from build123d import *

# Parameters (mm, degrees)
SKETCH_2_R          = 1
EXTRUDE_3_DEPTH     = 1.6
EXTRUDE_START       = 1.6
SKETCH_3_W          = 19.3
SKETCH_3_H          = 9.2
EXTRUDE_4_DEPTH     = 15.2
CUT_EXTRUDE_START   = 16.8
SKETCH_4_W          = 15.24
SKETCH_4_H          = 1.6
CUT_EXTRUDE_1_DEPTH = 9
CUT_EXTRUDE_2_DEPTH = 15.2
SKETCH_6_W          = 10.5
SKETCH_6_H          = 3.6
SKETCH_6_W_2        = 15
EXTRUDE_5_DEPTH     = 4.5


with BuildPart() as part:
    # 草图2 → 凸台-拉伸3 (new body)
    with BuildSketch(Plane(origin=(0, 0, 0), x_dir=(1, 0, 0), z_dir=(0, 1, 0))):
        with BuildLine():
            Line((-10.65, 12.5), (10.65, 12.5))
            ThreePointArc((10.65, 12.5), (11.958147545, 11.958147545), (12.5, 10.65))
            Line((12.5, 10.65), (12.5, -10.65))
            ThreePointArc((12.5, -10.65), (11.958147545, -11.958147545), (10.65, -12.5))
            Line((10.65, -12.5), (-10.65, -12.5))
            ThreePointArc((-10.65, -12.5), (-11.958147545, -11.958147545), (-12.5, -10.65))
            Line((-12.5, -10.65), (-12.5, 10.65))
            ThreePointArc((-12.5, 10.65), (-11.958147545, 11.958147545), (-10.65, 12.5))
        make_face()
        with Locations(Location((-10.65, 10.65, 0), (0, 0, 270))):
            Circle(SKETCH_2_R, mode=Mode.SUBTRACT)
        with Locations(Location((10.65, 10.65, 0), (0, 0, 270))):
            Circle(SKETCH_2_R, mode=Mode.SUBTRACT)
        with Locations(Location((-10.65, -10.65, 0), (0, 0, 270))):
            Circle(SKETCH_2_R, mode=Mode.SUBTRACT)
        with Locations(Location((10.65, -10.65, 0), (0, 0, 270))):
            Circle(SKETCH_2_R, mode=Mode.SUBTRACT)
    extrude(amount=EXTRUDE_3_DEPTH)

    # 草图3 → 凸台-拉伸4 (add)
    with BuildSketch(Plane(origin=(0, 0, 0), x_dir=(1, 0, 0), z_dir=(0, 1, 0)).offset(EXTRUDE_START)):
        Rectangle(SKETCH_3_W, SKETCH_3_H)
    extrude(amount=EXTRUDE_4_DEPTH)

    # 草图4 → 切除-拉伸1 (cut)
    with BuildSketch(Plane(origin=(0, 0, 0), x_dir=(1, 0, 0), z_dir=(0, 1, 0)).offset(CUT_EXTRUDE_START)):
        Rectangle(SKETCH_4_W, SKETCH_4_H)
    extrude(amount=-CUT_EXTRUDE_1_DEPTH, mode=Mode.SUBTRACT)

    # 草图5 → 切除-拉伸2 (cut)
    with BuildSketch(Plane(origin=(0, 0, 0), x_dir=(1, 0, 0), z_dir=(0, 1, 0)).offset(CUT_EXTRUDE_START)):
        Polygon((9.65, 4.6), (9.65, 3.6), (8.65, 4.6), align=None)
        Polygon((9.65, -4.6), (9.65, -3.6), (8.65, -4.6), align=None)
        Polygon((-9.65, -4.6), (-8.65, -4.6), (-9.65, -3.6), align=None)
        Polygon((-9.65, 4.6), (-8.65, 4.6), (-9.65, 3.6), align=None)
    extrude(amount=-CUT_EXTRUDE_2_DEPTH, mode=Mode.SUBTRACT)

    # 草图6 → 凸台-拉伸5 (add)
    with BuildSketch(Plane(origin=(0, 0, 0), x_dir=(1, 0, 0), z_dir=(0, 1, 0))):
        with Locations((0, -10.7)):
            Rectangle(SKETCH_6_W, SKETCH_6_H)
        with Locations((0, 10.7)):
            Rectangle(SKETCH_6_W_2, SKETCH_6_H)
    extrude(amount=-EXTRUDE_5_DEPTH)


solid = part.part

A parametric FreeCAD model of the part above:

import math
import FreeCAD as App
import Part
import Sketcher


def add_polygon(sketch, points):
    """Adds a closed chain of lines whose ends are joined by coincident constraints."""
    first, n = sketch.GeometryCount, len(points)
    for a, b in zip(points, points[1:] + points[:1]):
        sketch.addGeometry(Part.LineSegment(App.Vector(*a, 0), App.Vector(*b, 0)), False)
    for i in range(n):
        sketch.addConstraint(Sketcher.Constraint("Coincident", first + i, 2, first + (i + 1) % n, 1))

doc = App.newDocument("Part")
body = doc.addObject("PartDesign::Body", "Body")

sketch1 = body.newObject("Sketcher::SketchObject", "Sketch")
sketch1.AttachmentSupport = (doc.getObject("XZ_Plane"), [""])
sketch1.MapMode = "FlatFace"
sketch1.addGeometry([
    Part.LineSegment(App.Vector(10.7, -12.5, 0), App.Vector(-10.7, -12.5, 0)),
    Part.ArcOfCircle(Part.Circle(App.Vector(-10.6, -10.6, 0), App.Vector(0, 0, 1), 1.9), math.radians(-180), math.radians(-90)),
    Part.LineSegment(App.Vector(-12.5, -10.7, 0), App.Vector(-12.5, 10.7, 0)),
    Part.ArcOfCircle(Part.Circle(App.Vector(-10.6, 10.6, 0), App.Vector(0, 0, 1), 1.9), math.radians(90), math.radians(180)),
    Part.LineSegment(App.Vector(-10.7, 12.5, 0), App.Vector(10.7, 12.5, 0)),
    Part.ArcOfCircle(Part.Circle(App.Vector(10.6, 10.6, 0), App.Vector(0, 0, 1), 1.9), math.radians(0), math.radians(90)),
    Part.LineSegment(App.Vector(12.5, 10.7, 0), App.Vector(12.5, -10.7, 0)),
    Part.ArcOfCircle(Part.Circle(App.Vector(10.6, -10.6, 0), App.Vector(0, 0, 1), 1.9), math.radians(-90), math.radians(0)),
    Part.Circle(App.Vector(10.7, 10.7, 0), App.Vector(0, 0, 1), 1),
    Part.Circle(App.Vector(-10.7, 10.7, 0), App.Vector(0, 0, 1), 1),
    Part.Circle(App.Vector(10.7, -10.7, 0), App.Vector(0, 0, 1), 1),
    Part.Circle(App.Vector(-10.7, -10.7, 0), App.Vector(0, 0, 1), 1),
], False)
sketch1.addConstraint([
    Sketcher.Constraint("Tangent", 0, 2, 1, 2),
    Sketcher.Constraint("Tangent", 1, 1, 2, 1),
    Sketcher.Constraint("Tangent", 2, 2, 3, 2),
    Sketcher.Constraint("Tangent", 3, 1, 4, 1),
    Sketcher.Constraint("Tangent", 4, 2, 5, 2),
    Sketcher.Constraint("Tangent", 5, 1, 6, 1),
    Sketcher.Constraint("Tangent", 6, 2, 7, 2),
    Sketcher.Constraint("Tangent", 7, 1, 0, 1),
    Sketcher.Constraint("Horizontal", 0),
    Sketcher.Constraint("Vertical", 2),
    Sketcher.Constraint("Horizontal", 4),
    Sketcher.Constraint("Vertical", 6),
    Sketcher.Constraint("Coincident", 8, 3, 5, 3),
    Sketcher.Constraint("Coincident", 9, 3, 3, 3),
    Sketcher.Constraint("Coincident", 10, 3, 7, 3),
    Sketcher.Constraint("Coincident", 11, 3, 1, 3),
    Sketcher.Constraint("Equal", 1, 3),
    Sketcher.Constraint("Equal", 3, 5),
    Sketcher.Constraint("Equal", 5, 7),
    Sketcher.Constraint("Equal", 8, 9),
    Sketcher.Constraint("Equal", 9, 10),
    Sketcher.Constraint("Equal", 10, 11),
    Sketcher.Constraint("Symmetric", 1, 3, 5, 3, -1, 1),
    Sketcher.Constraint("Equal", 4, 2),
    Sketcher.Constraint("Diameter", 8, 2.0),
    Sketcher.Constraint("Radius", 1, 1.85),
    Sketcher.Constraint("DistanceX", 0, 2, 0, 1, 21.3),
])
pad1 = body.newObject("PartDesign::Pad", "Pad")
pad1.Profile = sketch1
pad1.Length = 1.6
pad1.Reversed = True

sketch2 = body.newObject("Sketcher::SketchObject", "Sketch001")
sketch2.AttachmentSupport = (doc.getObject("XZ_Plane"), [""])
sketch2.MapMode = "FlatFace"
sketch2.AttachmentOffset = App.Placement(App.Vector(0, 0, -1.6), App.Rotation())
add_polygon(sketch2, [(-10, -5), (-10, 5), (10, 5), (10, -5)])
sketch2.addConstraint([
    Sketcher.Constraint("Vertical", 0),
    Sketcher.Constraint("Horizontal", 1),
    Sketcher.Constraint("Vertical", 2),
    Sketcher.Constraint("Horizontal", 3),
    Sketcher.Constraint("Symmetric", 0, 2, 2, 2, -1, 1),
    Sketcher.Constraint("DistanceX", 1, 1, 1, 2, 19.3),
    Sketcher.Constraint("DistanceY", 0, 1, 0, 2, 9.2),
])
pad2 = body.newObject("PartDesign::Pad", "Pad001")
pad2.Profile = sketch2
pad2.Length = 15.2
pad2.Reversed = True

sketch3 = body.newObject("Sketcher::SketchObject", "Sketch002")
sketch3.AttachmentSupport = (doc.getObject("XZ_Plane"), [""])
sketch3.MapMode = "FlatFace"
sketch3.AttachmentOffset = App.Placement(App.Vector(0, 0, -16.8), App.Rotation())
add_polygon(sketch3, [(-7.6, -0.8), (-7.6, 0.8), (7.6, 0.8), (7.6, -0.8)])
sketch3.addConstraint([
    Sketcher.Constraint("Vertical", 0),
    Sketcher.Constraint("Horizontal", 1),
    Sketcher.Constraint("Vertical", 2),
    Sketcher.Constraint("Horizontal", 3),
    Sketcher.Constraint("Symmetric", 0, 2, 2, 2, -1, 1),
    Sketcher.Constraint("DistanceY", 0, 1, 0, 2, 1.6),
    Sketcher.Constraint("DistanceX", 1, 1, 1, 2, 15.24),
])
pocket1 = body.newObject("PartDesign::Pocket", "Pocket")
pocket1.Profile = sketch3
pocket1.Length = 9
pocket1.Reversed = True

sketch4 = body.newObject("Sketcher::SketchObject", "Sketch003")
sketch4.AttachmentSupport = (doc.getObject("XZ_Plane"), [""])
sketch4.MapMode = "FlatFace"
sketch4.AttachmentOffset = App.Placement(App.Vector(0, 0, -16.8), App.Rotation())
add_polygon(sketch4, [(9.7, -3.6), (9.7, -4.6), (8.7, -4.6)])
add_polygon(sketch4, [(9.7, 4.6), (9.7, 3.6), (8.7, 4.6)])
add_polygon(sketch4, [(-9.7, 4.6), (-8.7, 4.6), (-9.7, 3.6)])
add_polygon(sketch4, [(-8.7, -4.6), (-9.7, -4.6), (-9.7, -3.6)])
sketch4.addConstraint([
    Sketcher.Constraint("Vertical", 0),
    Sketcher.Constraint("Horizontal", 1),
    Sketcher.Constraint("Vertical", 3),
    Sketcher.Constraint("Horizontal", 5),
    Sketcher.Constraint("Horizontal", 6),
    Sketcher.Constraint("Vertical", 8),
    Sketcher.Constraint("Horizontal", 9),
    Sketcher.Constraint("Vertical", 10),
    Sketcher.Constraint("Symmetric", 1, 2, 6, 2, -1, 1),
    Sketcher.Constraint("Symmetric", 2, 2, 7, 2, -1, 1),
    Sketcher.Constraint("Symmetric", 5, 2, 9, 2, -1, 1),
    Sketcher.Constraint("Symmetric", 4, 2, 6, 2, -2),
    Sketcher.Constraint("Symmetric", 3, 2, 7, 2, -2),
    Sketcher.Constraint("Perpendicular", 2, 4),
    Sketcher.Constraint("Perpendicular", 7, 11),
    Sketcher.Constraint("Horizontal", 2, 2, 10, 2),
    Sketcher.Constraint("DistanceX", 1, 2, 1, 1, 1.0),
    Sketcher.Constraint("DistanceY", 0, 2, -1, 1, 4.6),
    Sketcher.Constraint("DistanceX", 6, 2, 4, 2, 17.3),
])
pocket2 = body.newObject("PartDesign::Pocket", "Pocket001")
pocket2.Profile = sketch4
pocket2.Length = 15.2
pocket2.Reversed = True

sketch5 = body.newObject("Sketcher::SketchObject", "Sketch004")
sketch5.AttachmentSupport = (doc.getObject("XZ_Plane"), [""])
sketch5.MapMode = "FlatFace"
add_polygon(sketch5, [(-5.2, 8.9), (-5.2, 12.5), (5.2, 12.5), (5.2, 8.9)])
add_polygon(sketch5, [(-7.5, -12.5), (-7.5, -8.9), (7.5, -8.9), (7.5, -12.5)])
sketch5.addConstraint([
    Sketcher.Constraint("Vertical", 0),
    Sketcher.Constraint("Horizontal", 1),
    Sketcher.Constraint("Vertical", 2),
    Sketcher.Constraint("Horizontal", 3),
    Sketcher.Constraint("Vertical", 4),
    Sketcher.Constraint("Horizontal", 5),
    Sketcher.Constraint("Vertical", 6),
    Sketcher.Constraint("Horizontal", 7),
    Sketcher.Constraint("Equal", 2, 4),
    Sketcher.Constraint("DistanceX", 5, 1, 5, 2, 15.0),
    Sketcher.Constraint("DistanceX", 1, 1, 1, 2, 10.5),
    Sketcher.Constraint("DistanceY", 0, 1, 0, 2, 3.6),
    Sketcher.Constraint("DistanceY", 6, 2, 1, 2, 25.0),
    Sketcher.Constraint("DistanceY", -1, 1, 0, 2, 12.5),
    Sketcher.Constraint("DistanceX", 4, 2, -1, 1, 7.5),
    Sketcher.Constraint("DistanceX", 0, 2, -1, 1, 5.25),
])
pad3 = body.newObject("PartDesign::Pad", "Pad002")
pad3.Profile = sketch5
pad3.Length = 4.5

doc.recompute()
